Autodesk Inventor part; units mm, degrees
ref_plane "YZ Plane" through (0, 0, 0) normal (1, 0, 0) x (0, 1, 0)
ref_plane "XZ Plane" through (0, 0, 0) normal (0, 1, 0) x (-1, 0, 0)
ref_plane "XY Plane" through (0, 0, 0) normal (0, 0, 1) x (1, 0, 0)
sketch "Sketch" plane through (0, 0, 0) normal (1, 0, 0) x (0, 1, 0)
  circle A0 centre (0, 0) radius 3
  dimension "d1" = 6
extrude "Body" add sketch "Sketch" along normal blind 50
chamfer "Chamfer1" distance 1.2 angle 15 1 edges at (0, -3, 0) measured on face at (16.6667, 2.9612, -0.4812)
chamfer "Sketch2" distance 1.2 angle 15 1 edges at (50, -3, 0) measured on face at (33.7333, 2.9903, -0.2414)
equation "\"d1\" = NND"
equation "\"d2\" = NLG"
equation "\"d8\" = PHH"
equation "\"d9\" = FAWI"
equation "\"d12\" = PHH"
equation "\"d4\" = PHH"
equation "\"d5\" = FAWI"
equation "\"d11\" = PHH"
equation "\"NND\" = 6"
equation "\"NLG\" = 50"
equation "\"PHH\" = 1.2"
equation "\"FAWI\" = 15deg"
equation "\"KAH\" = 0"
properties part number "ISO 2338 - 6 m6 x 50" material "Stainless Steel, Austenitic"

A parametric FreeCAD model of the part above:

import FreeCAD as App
import Part
import Sketcher

V = App.Vector
Q = App.Units.Quantity


def edges_at(feature, points):
    """Names of the edges that pass closest to the given points."""
    edges = feature.Shape.Edges
    near = lambda p: min(range(len(edges)), key=lambda i: edges[i].distToShape(Part.Vertex(*p))[0])
    return sorted({f"Edge{near(p) + 1}" for p in points})

doc = App.newDocument("Part")
body = doc.addObject("PartDesign::Body", "Body")

# Sketch on YZ plane
sketch1 = body.newObject("Sketcher::SketchObject", "Sketch")
sketch1.AttachmentSupport = (doc.getObject("YZ_Plane"), [""])
sketch1.MapMode = "FlatFace"
sketch1.addGeometry(Part.Circle(V(0, 0, 0), V(0, 0, 1), 3), False)
sketch1.addConstraint([
    Sketcher.Constraint("Coincident", 0, 3, -1, 1),
    Sketcher.Constraint("Diameter", 0, Q("6 mm")),
])
pad1 = body.newObject("PartDesign::Pad", "Pad")
pad1.Profile = sketch1
pad1.Length = 50
doc.recompute()

chamfer = body.newObject("PartDesign::Chamfer", "Chamfer")
chamfer.Base = (pad1, edges_at(pad1, [(0, -3, 0)]))
chamfer.ChamferType = "Distance and Angle"
chamfer.Size = 1.2
chamfer.Angle = 15
doc.recompute()

chamfer2 = body.newObject("PartDesign::Chamfer", "Chamfer001")
chamfer2.Base = (chamfer, edges_at(chamfer, [(50, -3, 0)]))
chamfer2.ChamferType = "Distance and Angle"
chamfer2.Size = 1.2
chamfer2.Angle = 15

doc.recompute()
